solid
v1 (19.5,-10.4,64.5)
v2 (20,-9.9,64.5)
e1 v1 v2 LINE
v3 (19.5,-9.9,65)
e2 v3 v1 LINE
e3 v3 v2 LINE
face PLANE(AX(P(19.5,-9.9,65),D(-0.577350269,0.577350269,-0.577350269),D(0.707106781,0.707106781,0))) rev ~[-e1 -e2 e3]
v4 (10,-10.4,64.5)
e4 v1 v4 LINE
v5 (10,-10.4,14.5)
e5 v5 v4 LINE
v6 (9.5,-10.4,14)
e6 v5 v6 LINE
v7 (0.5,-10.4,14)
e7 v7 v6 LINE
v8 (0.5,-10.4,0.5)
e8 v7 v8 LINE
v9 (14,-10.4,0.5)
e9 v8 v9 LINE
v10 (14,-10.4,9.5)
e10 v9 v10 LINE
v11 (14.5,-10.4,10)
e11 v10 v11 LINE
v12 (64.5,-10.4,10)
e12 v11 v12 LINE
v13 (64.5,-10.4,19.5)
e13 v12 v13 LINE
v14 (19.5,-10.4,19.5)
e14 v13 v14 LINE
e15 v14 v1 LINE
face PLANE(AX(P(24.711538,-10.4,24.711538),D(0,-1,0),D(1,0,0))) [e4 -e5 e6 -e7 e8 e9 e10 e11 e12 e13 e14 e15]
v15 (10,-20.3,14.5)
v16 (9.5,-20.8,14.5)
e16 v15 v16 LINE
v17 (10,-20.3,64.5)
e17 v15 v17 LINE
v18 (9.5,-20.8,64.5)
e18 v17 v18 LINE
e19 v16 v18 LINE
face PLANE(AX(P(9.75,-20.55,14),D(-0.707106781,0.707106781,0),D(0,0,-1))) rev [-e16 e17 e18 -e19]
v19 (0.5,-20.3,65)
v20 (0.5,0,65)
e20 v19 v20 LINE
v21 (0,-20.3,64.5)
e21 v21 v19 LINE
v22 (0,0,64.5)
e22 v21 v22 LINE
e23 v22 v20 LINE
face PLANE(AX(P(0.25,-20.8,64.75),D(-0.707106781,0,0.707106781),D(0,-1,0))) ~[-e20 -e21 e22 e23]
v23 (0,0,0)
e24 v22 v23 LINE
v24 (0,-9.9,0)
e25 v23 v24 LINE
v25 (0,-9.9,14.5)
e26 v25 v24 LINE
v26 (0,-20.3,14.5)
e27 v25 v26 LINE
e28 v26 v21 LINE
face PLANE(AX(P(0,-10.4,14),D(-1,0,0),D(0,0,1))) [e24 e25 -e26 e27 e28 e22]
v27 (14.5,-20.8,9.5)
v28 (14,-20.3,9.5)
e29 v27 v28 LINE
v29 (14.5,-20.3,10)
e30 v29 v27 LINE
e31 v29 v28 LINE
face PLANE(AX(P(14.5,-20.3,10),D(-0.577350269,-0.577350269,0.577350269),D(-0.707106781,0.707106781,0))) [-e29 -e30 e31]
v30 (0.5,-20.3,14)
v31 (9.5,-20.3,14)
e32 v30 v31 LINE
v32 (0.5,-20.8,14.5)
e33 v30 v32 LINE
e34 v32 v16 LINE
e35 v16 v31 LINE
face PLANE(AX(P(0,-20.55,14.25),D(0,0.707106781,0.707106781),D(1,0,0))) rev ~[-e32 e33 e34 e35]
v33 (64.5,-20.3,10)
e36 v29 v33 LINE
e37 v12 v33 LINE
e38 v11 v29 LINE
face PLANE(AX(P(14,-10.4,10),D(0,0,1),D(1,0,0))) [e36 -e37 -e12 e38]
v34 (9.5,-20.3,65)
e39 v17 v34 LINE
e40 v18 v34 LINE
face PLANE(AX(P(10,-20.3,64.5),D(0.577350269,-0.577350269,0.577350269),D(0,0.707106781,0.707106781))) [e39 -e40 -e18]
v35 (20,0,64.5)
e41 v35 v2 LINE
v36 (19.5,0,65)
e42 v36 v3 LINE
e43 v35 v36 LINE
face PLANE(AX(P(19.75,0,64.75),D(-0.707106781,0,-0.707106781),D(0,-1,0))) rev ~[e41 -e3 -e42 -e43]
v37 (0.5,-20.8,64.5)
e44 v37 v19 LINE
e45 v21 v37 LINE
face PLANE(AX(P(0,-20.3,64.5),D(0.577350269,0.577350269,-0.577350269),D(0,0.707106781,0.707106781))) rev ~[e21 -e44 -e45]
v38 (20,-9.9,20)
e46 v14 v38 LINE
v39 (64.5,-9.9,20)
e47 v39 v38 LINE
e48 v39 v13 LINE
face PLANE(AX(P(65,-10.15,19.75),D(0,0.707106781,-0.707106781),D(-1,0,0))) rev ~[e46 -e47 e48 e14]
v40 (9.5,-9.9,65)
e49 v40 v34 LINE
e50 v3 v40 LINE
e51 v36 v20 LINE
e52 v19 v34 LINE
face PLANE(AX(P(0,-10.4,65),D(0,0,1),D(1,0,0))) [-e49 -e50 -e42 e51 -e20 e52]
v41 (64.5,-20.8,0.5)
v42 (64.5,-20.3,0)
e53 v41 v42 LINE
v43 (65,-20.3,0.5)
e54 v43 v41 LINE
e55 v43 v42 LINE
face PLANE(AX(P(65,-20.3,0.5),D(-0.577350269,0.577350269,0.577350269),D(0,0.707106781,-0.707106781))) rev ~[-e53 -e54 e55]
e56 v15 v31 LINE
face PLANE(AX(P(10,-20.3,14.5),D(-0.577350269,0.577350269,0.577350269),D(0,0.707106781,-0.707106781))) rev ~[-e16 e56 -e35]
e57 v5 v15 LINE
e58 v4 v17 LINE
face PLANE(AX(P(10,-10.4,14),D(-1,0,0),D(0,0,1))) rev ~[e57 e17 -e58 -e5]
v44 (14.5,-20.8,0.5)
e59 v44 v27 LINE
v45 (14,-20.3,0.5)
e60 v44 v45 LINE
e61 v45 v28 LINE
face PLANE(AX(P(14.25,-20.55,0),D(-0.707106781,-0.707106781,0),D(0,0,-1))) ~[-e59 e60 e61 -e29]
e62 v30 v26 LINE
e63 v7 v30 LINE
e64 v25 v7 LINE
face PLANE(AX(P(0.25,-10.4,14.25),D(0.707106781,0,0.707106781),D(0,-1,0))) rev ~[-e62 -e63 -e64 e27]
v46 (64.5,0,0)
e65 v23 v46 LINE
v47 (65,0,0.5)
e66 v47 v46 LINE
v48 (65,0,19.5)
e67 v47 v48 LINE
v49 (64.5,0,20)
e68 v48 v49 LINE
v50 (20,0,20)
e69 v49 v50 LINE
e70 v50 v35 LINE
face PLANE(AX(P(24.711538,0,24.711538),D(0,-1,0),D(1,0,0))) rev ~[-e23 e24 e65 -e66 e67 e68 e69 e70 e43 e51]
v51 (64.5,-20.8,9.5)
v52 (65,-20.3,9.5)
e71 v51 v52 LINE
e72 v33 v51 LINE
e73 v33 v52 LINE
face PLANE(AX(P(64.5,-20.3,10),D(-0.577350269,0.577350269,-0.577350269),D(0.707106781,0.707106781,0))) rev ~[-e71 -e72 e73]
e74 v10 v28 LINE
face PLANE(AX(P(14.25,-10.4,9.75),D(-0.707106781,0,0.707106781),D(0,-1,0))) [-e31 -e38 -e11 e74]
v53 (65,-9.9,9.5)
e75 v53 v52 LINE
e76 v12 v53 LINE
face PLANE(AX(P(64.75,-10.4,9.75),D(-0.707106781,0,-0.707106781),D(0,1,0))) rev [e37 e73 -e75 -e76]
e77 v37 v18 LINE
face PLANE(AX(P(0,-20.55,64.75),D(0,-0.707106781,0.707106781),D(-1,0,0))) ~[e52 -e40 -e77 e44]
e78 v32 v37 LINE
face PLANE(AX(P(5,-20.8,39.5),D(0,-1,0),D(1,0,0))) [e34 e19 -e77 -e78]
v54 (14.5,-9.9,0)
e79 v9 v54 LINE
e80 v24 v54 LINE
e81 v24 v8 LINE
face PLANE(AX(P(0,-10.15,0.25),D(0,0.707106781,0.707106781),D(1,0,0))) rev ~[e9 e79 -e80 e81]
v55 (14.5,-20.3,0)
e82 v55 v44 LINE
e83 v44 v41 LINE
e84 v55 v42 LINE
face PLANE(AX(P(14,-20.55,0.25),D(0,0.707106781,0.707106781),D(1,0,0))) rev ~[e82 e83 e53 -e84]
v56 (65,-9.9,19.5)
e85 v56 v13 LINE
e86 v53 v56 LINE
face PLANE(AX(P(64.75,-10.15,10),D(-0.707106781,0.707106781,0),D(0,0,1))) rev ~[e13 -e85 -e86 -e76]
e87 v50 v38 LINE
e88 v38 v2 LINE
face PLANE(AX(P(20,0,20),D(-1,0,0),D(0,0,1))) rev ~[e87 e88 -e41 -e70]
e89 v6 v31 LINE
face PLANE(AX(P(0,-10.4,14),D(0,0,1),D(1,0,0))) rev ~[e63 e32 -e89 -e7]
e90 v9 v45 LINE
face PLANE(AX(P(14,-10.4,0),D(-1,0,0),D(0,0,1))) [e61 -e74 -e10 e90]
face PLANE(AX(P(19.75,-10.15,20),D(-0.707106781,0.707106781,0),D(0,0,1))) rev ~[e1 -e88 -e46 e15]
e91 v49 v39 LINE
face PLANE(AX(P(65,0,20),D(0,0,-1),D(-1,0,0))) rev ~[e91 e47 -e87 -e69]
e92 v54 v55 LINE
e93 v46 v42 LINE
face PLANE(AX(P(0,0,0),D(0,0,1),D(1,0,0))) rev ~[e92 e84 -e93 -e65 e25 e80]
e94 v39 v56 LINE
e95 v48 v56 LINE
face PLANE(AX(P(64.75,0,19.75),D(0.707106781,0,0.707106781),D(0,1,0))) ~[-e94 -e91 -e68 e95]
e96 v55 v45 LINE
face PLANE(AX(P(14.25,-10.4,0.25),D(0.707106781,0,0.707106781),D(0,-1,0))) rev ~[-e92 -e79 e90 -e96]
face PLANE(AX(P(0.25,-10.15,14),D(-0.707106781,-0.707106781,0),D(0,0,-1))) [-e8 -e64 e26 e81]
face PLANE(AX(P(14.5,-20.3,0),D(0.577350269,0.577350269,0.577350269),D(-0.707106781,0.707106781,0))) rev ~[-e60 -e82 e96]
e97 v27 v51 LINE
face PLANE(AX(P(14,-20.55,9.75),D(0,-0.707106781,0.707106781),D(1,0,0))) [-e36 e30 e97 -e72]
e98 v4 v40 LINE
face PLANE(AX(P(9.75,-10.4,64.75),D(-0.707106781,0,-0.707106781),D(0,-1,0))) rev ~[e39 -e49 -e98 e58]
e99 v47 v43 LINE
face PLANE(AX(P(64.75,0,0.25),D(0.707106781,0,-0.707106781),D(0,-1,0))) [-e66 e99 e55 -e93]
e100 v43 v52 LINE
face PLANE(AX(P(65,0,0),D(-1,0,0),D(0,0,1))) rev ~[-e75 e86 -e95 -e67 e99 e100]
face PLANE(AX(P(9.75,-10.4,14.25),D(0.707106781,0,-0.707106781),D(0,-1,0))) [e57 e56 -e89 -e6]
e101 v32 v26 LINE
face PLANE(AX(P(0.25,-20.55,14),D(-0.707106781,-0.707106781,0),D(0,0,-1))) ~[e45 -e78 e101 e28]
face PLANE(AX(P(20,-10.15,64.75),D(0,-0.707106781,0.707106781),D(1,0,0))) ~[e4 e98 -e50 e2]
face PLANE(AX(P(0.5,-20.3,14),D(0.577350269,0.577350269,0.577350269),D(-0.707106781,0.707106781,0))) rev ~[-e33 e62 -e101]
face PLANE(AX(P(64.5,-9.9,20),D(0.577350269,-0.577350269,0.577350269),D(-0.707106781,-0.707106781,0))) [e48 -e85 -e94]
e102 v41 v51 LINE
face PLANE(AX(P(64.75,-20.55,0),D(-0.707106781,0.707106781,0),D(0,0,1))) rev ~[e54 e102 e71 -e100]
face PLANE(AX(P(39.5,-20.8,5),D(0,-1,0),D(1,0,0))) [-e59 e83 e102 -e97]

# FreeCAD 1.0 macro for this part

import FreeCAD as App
import Part
import Sketcher

V = App.Vector
Q = App.Units.Quantity


def edges_at(feature, points):
    """Names of the edges that pass closest to the given points."""
    edges = feature.Shape.Edges
    near = lambda p: min(range(len(edges)), key=lambda i: edges[i].distToShape(Part.Vertex(*p))[0])
    return sorted({f"Edge{near(p) + 1}" for p in points})

doc = App.newDocument("Part")
body = doc.addObject("PartDesign::Body", "Body")

sketch1 = body.newObject("Sketcher::SketchObject", "Sketch")
sketch1.AttachmentSupport = (doc.getObject("XZ_Plane"), [""])
sketch1.MapMode = "FlatFace"
sketch1.addGeometry([
    Part.LineSegment(V(0, 65, 0), V(0, 0, 0)),
    Part.LineSegment(V(0, 0, 0), V(65, 0, 0)),
    Part.LineSegment(V(65, 0, 0), V(65, 20, 0)),
    Part.LineSegment(V(65, 20, 0), V(20, 20, 0)),
    Part.LineSegment(V(20, 20, 0), V(20, 65, 0)),
    Part.LineSegment(V(20, 65, 0), V(0, 65, 0)),
], False)
sketch1.addConstraint([
    Sketcher.Constraint("Coincident", 0, 2, 1, 1),
    Sketcher.Constraint("Coincident", 1, 2, 2, 1),
    Sketcher.Constraint("Coincident", 2, 2, 3, 1),
    Sketcher.Constraint("Coincident", 3, 2, 4, 1),
    Sketcher.Constraint("Coincident", 4, 2, 5, 1),
    Sketcher.Constraint("Coincident", 5, 2, 0, 1),
    Sketcher.Constraint("Vertical", 0),
    Sketcher.Constraint("Horizontal", 1),
    Sketcher.Constraint("Vertical", 2),
    Sketcher.Constraint("Horizontal", 3),
    Sketcher.Constraint("Vertical", 4),
    Sketcher.Constraint("Horizontal", 5),
    Sketcher.Constraint("Coincident", 0, 2, -1, 1),
    Sketcher.Constraint("Equal", 1, 0),
    Sketcher.Constraint("Equal", 5, 2),
    Sketcher.Constraint("DistanceX", 1, 1, 1, 2, Q("65 mm")),
    Sketcher.Constraint("DistanceX", 3, 2, 3, 1, Q("45 mm")),
])
pad1 = body.newObject("PartDesign::Pad", "Pad")
pad1.Profile = sketch1
pad1.Length = 10.4

sketch2 = body.newObject("Sketcher::SketchObject", "Sketch001")
sketch2.AttachmentSupport = (doc.getObject("XZ_Plane"), [""])
sketch2.MapMode = "FlatFace"
sketch2.AttachmentOffset = App.Placement(V(0, 0, 10.4), App.Rotation())
sketch2.addGeometry([
    Part.LineSegment(V(0, 65, 0), V(0, 14, 0)),
    Part.LineSegment(V(0, 14, 0), V(10, 14, 0)),
    Part.LineSegment(V(10, 14, 0), V(10, 65, 0)),
    Part.LineSegment(V(10, 65, 0), V(0, 65, 0)),
    Part.LineSegment(V(14, 10, 0), V(14, 0, 0)),
    Part.LineSegment(V(14, 0, 0), V(65, 0, 0)),
    Part.LineSegment(V(65, 0, 0), V(65, 10, 0)),
    Part.LineSegment(V(65, 10, 0), V(14, 10, 0)),
], False)
sketch2.addConstraint([
    Sketcher.Constraint("Coincident", 0, 2, 1, 1),
    Sketcher.Constraint("Coincident", 1, 2, 2, 1),
    Sketcher.Constraint("Coincident", 2, 2, 3, 1),
    Sketcher.Constraint("Coincident", 3, 2, 0, 1),
    Sketcher.Constraint("Coincident", 4, 2, 5, 1),
    Sketcher.Constraint("Coincident", 5, 2, 6, 1),
    Sketcher.Constraint("Coincident", 6, 2, 7, 1),
    Sketcher.Constraint("Coincident", 7, 2, 4, 1),
    Sketcher.Constraint("Vertical", 0),
    Sketcher.Constraint("Horizontal", 1),
    Sketcher.Constraint("Vertical", 2),
    Sketcher.Constraint("Horizontal", 3),
    Sketcher.Constraint("Vertical", 4),
    Sketcher.Constraint("Horizontal", 5),
    Sketcher.Constraint("Vertical", 6),
    Sketcher.Constraint("Horizontal", 7),
    Sketcher.Constraint("PointOnObject", 0, 2, -2),
    Sketcher.Constraint("PointOnObject", 4, 2, -1),
    Sketcher.Constraint("Equal", 7, 0),
    Sketcher.Constraint("Equal", 3, 4),
    Sketcher.Constraint("DistanceX", 1, 1, 1, 2, Q("10 mm")),
    Sketcher.Constraint("DistanceX", 5, 1, 5, 2, Q("51 mm")),
    Sketcher.Constraint("DistanceY", -1, 1, 0, 2, Q("14 mm")),
    Sketcher.Constraint("DistanceX", -1, 1, 4, 2, Q("14 mm")),
])
pad2 = body.newObject("PartDesign::Pad", "Pad001")
pad2.Profile = sketch2
pad2.Length = 10.4
doc.recompute()

chamfer = body.newObject("PartDesign::Chamfer", "Chamfer")
chamfer.Base = (pad2, edges_at(pad2, [
    (20, -10.4, 42.5),
    (15, -10.4, 65),
    (5, -20.8, 65),
    (0, -20.8, 39.5),
    (5, -20.8, 14),
    (10, -20.8, 39.5),
    (14, -20.8, 5),
    (39.5, -20.8, 0),
    (65, -20.8, 5),
    (39.5, -20.8, 10),
    (65, -10.4, 15),
    (65, -15.6, 10),
    (10, -15.6, 65),
    (20, -5.2, 65),
    (65, -5.2, 20),
    (42.5, -10.4, 20),
    (0, -10.4, 7),
    (7, -10.4, 0),
    (14, -15.6, 0),
    (0, -15.6, 14),
    (10, -15.6, 14),
    (14, -15.6, 10),
    (0, -10.4, 65),
    (65, -10.4, 0),
]))
chamfer.Size = 0.5

doc.recompute()
